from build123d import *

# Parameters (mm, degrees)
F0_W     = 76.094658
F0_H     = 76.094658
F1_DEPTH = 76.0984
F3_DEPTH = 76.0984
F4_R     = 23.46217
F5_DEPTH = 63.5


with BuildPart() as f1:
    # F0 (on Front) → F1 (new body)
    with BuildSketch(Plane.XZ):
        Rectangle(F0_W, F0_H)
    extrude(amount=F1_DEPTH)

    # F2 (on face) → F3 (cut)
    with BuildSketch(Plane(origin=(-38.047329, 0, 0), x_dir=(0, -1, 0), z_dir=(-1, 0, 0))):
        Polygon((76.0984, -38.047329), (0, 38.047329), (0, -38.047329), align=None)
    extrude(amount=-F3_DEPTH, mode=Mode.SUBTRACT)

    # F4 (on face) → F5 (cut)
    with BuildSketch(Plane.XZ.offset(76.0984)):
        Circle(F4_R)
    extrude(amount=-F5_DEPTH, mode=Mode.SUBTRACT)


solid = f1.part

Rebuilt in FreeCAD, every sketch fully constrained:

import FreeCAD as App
import Part
import Sketcher
Q = App.Units.Quantity

doc = App.newDocument("Part")
body = doc.addObject("PartDesign::Body", "Body")

# Sketch on XZ plane
sketch1 = body.newObject("Sketcher::SketchObject", "Sketch")
sketch1.AttachmentSupport = (doc.getObject("XZ_Plane"), [""])
sketch1.MapMode = "FlatFace"
sketch1.addGeometry([
    Part.LineSegment(App.Vector(-38, 38, 0), App.Vector(-38, -38, 0)),
    Part.LineSegment(App.Vector(-38, -38, 0), App.Vector(38, -38, 0)),
    Part.LineSegment(App.Vector(38, -38, 0), App.Vector(38, 38, 0)),
    Part.LineSegment(App.Vector(38, 38, 0), App.Vector(-38, 38, 0)),
], False)
sketch1.addConstraint([
    Sketcher.Constraint("Coincident", 0, 2, 1, 1),
    Sketcher.Constraint("Coincident", 1, 2, 2, 1),
    Sketcher.Constraint("Coincident", 2, 2, 3, 1),
    Sketcher.Constraint("Coincident", 3, 2, 0, 1),
    Sketcher.Constraint("Vertical", 0),
    Sketcher.Constraint("Horizontal", 1),
    Sketcher.Constraint("Vertical", 2),
    Sketcher.Constraint("Horizontal", 3),
    Sketcher.Constraint("Symmetric", 0, 2, 2, 2, -1, 1),
    Sketcher.Constraint("Equal", 3, 0),
    Sketcher.Constraint("DistanceX", 1, 1, 1, 2, 76.094658),
])
pad1 = body.newObject("PartDesign::Pad", "Pad")
pad1.Profile = sketch1
pad1.Length = Q("2.996 in")

# Sketch on YZ plane
sketch2 = body.newObject("Sketcher::SketchObject", "Sketch001")
sketch2.AttachmentSupport = (doc.getObject("YZ_Plane"), [""])
sketch2.MapMode = "FlatFace"
sketch2.AttachmentOffset = App.Placement(App.Vector(0, 0, -38.047329), App.Rotation())
sketch2.addGeometry([
    Part.LineSegment(App.Vector(-76, -38, 0), App.Vector(0, 38, 0)),
    Part.LineSegment(App.Vector(0, 38, 0), App.Vector(0, -38, 0)),
    Part.LineSegment(App.Vector(0, -38, 0), App.Vector(-76, -38, 0)),
], False)
sketch2.addConstraint([
    Sketcher.Constraint("Coincident", 0, 2, 1, 1),
    Sketcher.Constraint("Coincident", 1, 2, 2, 1),
    Sketcher.Constraint("Coincident", 2, 2, 0, 1),
    Sketcher.Constraint("Vertical", 1),
    Sketcher.Constraint("Horizontal", 2),
    Sketcher.Constraint("Symmetric", 0, 2, 1, 2, -1, 1),
    Sketcher.Constraint("DistanceX", 2, 2, 2, 1, Q("2.996 in")),
    Sketcher.Constraint("DistanceY", 1, 2, 1, 1, 76.094658),
])
pocket1 = body.newObject("PartDesign::Pocket", "Pocket")
pocket1.Profile = sketch2
pocket1.Length = Q("2.996 in")
pocket1.Reversed = True

# Sketch on XZ plane
sketch3 = body.newObject("Sketcher::SketchObject", "Sketch002")
sketch3.AttachmentSupport = (doc.getObject("XZ_Plane"), [""])
sketch3.MapMode = "FlatFace"
sketch3.AttachmentOffset = App.Placement(App.Vector(0, 0, 2.996 * 25.4), App.Rotation())
sketch3.addGeometry(Part.Circle(App.Vector(0, 0, 0), App.Vector(0, 0, 1), 23), False)
sketch3.addConstraint([
    Sketcher.Constraint("Coincident", 0, 3, -1, 1),
    Sketcher.Constraint("Diameter", 0, 46.92434),
])
pocket2 = body.newObject("PartDesign::Pocket", "Pocket001")
pocket2.Profile = sketch3
pocket2.Length = Q("2.5 in")

doc.recompute()
